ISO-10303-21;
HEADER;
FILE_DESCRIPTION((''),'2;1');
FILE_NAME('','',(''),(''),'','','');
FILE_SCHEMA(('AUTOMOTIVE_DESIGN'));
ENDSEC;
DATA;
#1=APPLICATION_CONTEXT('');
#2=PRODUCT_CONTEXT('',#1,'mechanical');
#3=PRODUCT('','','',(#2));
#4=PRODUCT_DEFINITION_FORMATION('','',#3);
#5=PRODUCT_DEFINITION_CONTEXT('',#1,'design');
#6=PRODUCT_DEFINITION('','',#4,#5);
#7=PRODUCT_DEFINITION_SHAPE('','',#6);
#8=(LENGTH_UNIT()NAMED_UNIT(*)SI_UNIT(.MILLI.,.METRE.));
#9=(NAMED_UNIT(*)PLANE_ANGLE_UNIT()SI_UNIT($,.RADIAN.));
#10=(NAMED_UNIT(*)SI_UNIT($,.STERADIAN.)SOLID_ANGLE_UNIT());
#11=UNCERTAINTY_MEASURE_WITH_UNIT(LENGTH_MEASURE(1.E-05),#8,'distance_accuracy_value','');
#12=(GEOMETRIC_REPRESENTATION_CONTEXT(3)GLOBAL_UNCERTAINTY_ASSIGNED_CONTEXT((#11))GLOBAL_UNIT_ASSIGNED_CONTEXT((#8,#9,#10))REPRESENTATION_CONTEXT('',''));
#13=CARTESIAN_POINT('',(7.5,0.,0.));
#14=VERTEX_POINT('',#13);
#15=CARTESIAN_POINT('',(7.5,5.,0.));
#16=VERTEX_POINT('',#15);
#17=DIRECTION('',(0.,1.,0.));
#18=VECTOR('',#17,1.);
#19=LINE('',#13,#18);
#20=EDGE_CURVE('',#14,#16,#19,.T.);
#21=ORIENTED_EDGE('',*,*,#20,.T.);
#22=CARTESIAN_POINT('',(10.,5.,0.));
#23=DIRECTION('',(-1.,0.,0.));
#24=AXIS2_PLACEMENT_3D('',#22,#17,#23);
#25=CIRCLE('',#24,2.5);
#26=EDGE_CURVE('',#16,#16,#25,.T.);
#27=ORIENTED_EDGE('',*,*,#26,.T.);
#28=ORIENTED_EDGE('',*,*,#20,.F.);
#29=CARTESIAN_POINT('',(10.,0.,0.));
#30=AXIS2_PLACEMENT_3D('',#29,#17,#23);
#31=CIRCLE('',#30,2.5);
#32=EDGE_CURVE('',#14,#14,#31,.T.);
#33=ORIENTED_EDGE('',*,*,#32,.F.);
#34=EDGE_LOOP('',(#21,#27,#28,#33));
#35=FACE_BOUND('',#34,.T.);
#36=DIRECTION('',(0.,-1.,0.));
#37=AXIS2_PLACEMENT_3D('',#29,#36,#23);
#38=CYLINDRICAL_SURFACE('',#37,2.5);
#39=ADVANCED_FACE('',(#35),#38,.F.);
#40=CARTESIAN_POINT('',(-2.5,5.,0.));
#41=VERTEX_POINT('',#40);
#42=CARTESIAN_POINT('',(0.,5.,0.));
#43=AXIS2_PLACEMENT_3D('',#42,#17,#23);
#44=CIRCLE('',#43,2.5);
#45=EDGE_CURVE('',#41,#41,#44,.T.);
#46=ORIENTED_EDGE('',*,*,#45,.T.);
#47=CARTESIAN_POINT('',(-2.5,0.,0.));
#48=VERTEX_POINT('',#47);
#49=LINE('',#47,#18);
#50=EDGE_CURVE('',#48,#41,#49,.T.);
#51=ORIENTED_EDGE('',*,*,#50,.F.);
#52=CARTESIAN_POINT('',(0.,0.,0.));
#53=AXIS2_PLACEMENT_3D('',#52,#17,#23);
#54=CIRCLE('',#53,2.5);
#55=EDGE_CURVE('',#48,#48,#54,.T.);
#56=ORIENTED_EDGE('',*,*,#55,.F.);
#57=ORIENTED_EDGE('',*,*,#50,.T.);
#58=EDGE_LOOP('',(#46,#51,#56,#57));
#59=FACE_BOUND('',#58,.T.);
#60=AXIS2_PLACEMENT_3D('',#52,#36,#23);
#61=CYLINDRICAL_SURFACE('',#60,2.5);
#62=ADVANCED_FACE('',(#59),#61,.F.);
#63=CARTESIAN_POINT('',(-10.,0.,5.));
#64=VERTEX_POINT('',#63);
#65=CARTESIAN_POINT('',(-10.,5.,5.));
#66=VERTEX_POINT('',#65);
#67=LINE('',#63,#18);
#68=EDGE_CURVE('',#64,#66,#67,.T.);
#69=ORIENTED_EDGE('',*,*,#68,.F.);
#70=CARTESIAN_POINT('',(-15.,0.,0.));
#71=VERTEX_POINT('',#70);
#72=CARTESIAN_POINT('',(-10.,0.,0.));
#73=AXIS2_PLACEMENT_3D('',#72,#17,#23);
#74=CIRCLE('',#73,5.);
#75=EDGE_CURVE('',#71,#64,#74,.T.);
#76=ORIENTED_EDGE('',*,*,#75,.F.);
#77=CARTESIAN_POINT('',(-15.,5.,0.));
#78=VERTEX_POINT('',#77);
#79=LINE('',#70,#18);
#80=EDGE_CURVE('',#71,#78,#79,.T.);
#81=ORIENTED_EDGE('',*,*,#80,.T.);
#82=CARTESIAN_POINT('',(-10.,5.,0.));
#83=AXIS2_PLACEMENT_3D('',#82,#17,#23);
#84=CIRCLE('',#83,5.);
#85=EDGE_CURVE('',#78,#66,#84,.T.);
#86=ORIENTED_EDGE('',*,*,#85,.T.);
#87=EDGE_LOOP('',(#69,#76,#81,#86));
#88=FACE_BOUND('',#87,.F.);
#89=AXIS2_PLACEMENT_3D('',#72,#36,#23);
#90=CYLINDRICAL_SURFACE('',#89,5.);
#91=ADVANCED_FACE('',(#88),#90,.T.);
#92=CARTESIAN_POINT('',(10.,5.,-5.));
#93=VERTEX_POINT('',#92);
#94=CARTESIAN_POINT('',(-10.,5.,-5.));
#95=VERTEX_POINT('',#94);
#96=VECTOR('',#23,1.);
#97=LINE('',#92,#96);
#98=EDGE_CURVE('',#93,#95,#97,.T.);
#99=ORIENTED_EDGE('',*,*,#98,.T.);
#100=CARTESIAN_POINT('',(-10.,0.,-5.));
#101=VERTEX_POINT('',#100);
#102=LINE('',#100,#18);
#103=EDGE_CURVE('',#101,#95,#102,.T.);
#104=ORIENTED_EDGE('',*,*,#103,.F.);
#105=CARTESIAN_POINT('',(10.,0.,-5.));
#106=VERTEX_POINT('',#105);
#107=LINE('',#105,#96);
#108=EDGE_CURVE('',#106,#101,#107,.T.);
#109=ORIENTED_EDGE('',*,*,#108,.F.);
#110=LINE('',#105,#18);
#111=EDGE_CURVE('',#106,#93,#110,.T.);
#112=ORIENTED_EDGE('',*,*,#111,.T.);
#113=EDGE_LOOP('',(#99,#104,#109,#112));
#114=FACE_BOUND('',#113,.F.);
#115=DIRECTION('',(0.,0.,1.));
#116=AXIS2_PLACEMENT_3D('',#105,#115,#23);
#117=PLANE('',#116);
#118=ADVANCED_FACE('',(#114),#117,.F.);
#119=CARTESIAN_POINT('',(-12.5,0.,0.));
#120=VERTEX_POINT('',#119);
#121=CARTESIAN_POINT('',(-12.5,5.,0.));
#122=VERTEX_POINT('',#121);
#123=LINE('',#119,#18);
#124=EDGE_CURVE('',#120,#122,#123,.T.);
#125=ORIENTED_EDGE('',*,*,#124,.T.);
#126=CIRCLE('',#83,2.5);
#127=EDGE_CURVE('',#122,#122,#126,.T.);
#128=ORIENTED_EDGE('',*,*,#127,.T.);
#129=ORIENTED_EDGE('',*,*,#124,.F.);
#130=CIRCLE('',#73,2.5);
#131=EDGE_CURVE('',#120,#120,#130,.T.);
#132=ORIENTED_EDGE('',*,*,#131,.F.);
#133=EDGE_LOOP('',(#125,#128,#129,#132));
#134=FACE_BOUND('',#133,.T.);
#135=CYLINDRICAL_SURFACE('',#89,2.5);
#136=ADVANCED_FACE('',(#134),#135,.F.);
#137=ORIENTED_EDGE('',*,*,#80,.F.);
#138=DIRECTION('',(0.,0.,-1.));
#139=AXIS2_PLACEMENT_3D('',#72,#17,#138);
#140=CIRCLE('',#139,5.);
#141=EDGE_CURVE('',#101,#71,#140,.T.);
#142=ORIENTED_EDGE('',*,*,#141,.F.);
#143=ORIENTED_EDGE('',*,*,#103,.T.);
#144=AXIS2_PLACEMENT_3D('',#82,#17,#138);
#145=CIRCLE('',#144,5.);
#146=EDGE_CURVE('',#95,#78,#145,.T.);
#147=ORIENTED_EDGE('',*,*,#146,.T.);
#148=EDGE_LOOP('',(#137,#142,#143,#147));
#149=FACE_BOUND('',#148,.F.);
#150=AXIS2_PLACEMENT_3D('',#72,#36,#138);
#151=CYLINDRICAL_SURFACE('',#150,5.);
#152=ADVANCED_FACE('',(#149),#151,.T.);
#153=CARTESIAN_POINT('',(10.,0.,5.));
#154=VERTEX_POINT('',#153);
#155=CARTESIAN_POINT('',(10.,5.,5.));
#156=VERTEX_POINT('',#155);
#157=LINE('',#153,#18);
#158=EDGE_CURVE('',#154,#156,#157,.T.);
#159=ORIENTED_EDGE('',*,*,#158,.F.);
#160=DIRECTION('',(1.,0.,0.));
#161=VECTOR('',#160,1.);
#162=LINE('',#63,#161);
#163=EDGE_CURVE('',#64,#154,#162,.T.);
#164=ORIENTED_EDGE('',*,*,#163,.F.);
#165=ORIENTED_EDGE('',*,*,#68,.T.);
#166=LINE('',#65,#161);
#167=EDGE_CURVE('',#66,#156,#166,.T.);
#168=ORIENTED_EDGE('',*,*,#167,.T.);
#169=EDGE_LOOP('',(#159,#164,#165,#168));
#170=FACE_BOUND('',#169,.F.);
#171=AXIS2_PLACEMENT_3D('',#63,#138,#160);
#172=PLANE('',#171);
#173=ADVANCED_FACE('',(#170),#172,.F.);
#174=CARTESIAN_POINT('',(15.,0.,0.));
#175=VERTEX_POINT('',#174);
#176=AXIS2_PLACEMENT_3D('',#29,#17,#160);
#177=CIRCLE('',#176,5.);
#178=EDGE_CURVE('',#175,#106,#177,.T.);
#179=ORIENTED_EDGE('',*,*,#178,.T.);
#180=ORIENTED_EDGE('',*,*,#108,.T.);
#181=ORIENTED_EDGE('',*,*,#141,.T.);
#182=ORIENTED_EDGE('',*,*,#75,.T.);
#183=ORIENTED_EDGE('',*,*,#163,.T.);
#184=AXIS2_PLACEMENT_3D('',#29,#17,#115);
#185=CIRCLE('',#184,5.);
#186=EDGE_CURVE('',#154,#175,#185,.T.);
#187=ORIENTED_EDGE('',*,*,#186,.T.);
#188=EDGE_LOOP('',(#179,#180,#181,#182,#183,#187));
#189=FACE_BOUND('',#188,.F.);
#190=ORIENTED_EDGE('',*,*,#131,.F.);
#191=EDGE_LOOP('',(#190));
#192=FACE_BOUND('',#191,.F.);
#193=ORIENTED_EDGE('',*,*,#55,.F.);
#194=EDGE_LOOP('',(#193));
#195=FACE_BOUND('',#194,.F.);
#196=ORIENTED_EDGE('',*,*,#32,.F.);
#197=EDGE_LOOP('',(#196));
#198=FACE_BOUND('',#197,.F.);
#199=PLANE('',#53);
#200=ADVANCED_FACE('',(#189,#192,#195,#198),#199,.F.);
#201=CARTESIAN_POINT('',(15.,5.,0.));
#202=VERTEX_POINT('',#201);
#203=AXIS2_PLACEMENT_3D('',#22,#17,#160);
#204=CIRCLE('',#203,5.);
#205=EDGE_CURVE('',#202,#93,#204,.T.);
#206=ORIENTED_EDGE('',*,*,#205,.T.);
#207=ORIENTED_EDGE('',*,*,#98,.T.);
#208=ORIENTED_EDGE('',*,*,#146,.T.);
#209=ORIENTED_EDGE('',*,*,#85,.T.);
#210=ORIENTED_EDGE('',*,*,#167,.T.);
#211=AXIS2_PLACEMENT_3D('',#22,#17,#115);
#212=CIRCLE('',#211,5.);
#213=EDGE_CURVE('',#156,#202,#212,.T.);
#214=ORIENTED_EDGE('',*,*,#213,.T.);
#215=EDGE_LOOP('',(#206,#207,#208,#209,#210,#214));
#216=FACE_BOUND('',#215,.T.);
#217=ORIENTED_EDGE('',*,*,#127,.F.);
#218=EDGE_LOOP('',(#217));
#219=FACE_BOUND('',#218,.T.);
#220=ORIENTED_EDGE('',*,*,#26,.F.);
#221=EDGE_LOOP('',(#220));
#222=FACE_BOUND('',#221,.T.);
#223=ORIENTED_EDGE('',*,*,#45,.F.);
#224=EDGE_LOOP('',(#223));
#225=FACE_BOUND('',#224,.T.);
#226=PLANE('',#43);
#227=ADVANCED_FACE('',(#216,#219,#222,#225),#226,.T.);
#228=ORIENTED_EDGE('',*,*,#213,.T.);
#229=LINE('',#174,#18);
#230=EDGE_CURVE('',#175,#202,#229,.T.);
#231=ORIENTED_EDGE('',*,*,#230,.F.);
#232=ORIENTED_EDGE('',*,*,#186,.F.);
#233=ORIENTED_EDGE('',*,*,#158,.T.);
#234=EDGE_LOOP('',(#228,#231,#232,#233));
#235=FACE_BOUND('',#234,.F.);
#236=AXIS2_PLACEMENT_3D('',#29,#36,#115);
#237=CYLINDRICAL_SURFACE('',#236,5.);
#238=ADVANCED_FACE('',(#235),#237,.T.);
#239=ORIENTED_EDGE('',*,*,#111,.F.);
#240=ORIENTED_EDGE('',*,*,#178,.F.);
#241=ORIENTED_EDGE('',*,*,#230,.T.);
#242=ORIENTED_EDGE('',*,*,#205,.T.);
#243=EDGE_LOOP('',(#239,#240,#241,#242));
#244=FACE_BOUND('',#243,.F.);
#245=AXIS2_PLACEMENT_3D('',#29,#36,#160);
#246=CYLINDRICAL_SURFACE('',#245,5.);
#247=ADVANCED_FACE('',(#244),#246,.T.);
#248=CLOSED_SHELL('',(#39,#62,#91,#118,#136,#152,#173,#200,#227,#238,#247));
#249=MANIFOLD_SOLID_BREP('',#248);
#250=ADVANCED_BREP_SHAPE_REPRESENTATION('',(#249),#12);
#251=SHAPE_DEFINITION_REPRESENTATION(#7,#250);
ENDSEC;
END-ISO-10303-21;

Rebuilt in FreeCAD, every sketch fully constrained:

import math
import FreeCAD as App
import Part
import Sketcher
from FreeCAD import Vector
Q = App.Units.Quantity

doc = App.newDocument("Part")
body = doc.addObject("PartDesign::Body", "Body")

# Sketch on XZ plane
sketch1 = doc.addObject("Sketcher::SketchObject", "Sketch")
body.addObject(sketch1)
sketch1.AttachmentSupport = (doc.XZ_Plane, [""])
sketch1.MapMode = "FlatFace"
sketch1.addGeometry(Part.ArcOfCircle(Part.Circle(Vector(10, 0, 0), Vector(0, 0, 1), 5), math.radians(-90), math.radians(90)), False)
sketch1.addGeometry(Part.LineSegment(Vector(10, -5, 0), Vector(-10, -5, 0)), False)
sketch1.addGeometry(Part.ArcOfCircle(Part.Circle(Vector(-10, 0, 0), Vector(0, 0, 1), 5), math.radians(90), math.radians(270)), False)
sketch1.addGeometry(Part.LineSegment(Vector(-10, 5, 0), Vector(10, 5, 0)), False)
sketch1.addGeometry(Part.Circle(Vector(10, 0, 0), Vector(0, 0, 1), 2.5), False)
sketch1.addGeometry(Part.Circle(Vector(0, 0, 0), Vector(0, 0, 1), 2.5), False)
sketch1.addGeometry(Part.Circle(Vector(-10, 0, 0), Vector(0, 0, 1), 2.5), False)
sketch1.addConstraint(Sketcher.Constraint("Tangent", 0, 1, 1, 1))
sketch1.addConstraint(Sketcher.Constraint("Tangent", 1, 2, 2, 2))
sketch1.addConstraint(Sketcher.Constraint("Tangent", 2, 1, 3, 1))
sketch1.addConstraint(Sketcher.Constraint("Tangent", 3, 2, 0, 2))
sketch1.addConstraint(Sketcher.Constraint("Horizontal", 1))
sketch1.addConstraint(Sketcher.Constraint("Horizontal", 3))
sketch1.addConstraint(Sketcher.Constraint("Coincident", 5, 3, -1, 1))
sketch1.addConstraint(Sketcher.Constraint("Coincident", 4, 3, 0, 3))
sketch1.addConstraint(Sketcher.Constraint("Coincident", 6, 3, 2, 3))
sketch1.addConstraint(Sketcher.Constraint("Equal", 4, 5))
sketch1.addConstraint(Sketcher.Constraint("Equal", 5, 6))
sketch1.addConstraint(Sketcher.Constraint("Symmetric", 0, 3, 2, 3, -1, 1))
sketch1.addConstraint(Sketcher.Constraint("Diameter", 4, Q("5 mm")))
sketch1.addConstraint(Sketcher.Constraint("Radius", 0, Q("5 mm")))
sketch1.addConstraint(Sketcher.Constraint("DistanceX", -1, 1, 0, 3, Q("10 mm")))
pad1 = doc.addObject("PartDesign::Pad", "Pad")
body.addObject(pad1)
pad1.Profile = sketch1
pad1.Length = 5
pad1.Reversed = True

doc.recompute()
